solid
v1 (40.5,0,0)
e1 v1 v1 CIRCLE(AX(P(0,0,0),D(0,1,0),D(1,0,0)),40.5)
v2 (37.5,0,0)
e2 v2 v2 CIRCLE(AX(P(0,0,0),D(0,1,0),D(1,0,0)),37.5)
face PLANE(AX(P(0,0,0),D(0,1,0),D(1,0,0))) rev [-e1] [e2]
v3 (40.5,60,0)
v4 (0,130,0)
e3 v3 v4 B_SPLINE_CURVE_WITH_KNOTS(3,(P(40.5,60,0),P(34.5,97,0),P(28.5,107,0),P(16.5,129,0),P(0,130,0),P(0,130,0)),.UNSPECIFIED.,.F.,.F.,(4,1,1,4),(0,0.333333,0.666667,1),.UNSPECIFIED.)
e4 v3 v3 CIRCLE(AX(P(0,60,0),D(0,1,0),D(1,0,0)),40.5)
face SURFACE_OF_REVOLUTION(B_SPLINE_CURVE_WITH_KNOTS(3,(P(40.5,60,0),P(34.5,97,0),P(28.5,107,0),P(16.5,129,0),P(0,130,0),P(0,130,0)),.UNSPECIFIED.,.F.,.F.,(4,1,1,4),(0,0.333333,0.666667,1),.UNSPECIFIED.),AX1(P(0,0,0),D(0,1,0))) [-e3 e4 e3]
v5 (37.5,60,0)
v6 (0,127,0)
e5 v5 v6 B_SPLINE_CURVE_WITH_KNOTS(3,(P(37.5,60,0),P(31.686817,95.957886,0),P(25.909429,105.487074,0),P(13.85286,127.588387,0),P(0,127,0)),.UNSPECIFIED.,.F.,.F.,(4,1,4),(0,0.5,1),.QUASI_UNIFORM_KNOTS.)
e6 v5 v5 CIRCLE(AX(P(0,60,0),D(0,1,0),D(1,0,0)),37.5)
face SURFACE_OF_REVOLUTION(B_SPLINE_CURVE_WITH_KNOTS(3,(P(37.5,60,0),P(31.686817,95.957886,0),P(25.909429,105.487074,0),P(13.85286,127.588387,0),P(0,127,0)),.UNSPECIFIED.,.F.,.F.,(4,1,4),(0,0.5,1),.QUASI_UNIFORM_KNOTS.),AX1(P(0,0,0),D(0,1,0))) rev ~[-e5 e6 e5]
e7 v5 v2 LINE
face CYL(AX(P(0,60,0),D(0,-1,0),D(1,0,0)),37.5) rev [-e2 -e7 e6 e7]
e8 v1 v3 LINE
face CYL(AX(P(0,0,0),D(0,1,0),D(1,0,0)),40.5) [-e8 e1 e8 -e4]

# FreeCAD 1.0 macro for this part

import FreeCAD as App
import Part
import Sketcher

doc = App.newDocument("Part")
body = doc.addObject("PartDesign::Body", "Body")

sketch1 = body.newObject("Sketcher::SketchObject", "Sketch")
sketch1.AttachmentSupport = (doc.getObject("XY_Plane"), [""])
sketch1.MapMode = "FlatFace"
sketch1.addGeometry(Part.LineSegment(App.Vector(37.5, 0, 0), App.Vector(40.5, 0, 0)), False)
sketch1.addGeometry(Part.LineSegment(App.Vector(40.5, 0, 0), App.Vector(40.5, 60, 0)), False)
sketch1.addGeometry(Part.BSplineCurve([App.Vector(40.5, 60, 0), App.Vector(34.5, 97, 0), App.Vector(28.5, 107, 0), App.Vector(16.5, 129, 0), App.Vector(0, 130, 0), App.Vector(0, 130, 0)], [4, 1, 1, 4], [0, 0.333333, 0.666667, 1], False, 3, [1, 1, 1, 1, 1, 1], False), False)
sketch1.addGeometry(Part.LineSegment(App.Vector(0, 130, 0), App.Vector(0, 127, 0)), False)
sketch1.addGeometry(Part.BSplineCurve([App.Vector(37.5, 60, 0), App.Vector(31.686817, 95.957886, 0), App.Vector(25.909429, 105.487074, 0), App.Vector(13.85286, 127.588387, 0), App.Vector(0, 127, 0)], [4, 1, 4], [0, 0.5, 1], False, 3, [1, 1, 1, 1, 1], False), False)
sketch1.addGeometry(Part.LineSegment(App.Vector(37.5, 60, 0), App.Vector(37.5, 0, 0)), False)
sketch1.addConstraint(Sketcher.Constraint("Block", 2))
sketch1.addConstraint(Sketcher.Constraint("Block", 4))
sketch1.addConstraint(Sketcher.Constraint("Coincident", 0, 2, 1, 1))
sketch1.addConstraint(Sketcher.Constraint("Coincident", 1, 2, 2, 1))
sketch1.addConstraint(Sketcher.Constraint("Coincident", 2, 2, 3, 1))
sketch1.addConstraint(Sketcher.Constraint("Coincident", 3, 2, 4, 2))
sketch1.addConstraint(Sketcher.Constraint("Coincident", 4, 1, 5, 1))
sketch1.addConstraint(Sketcher.Constraint("Coincident", 5, 2, 0, 1))
sketch1.addConstraint(Sketcher.Constraint("Horizontal", 0))
sketch1.addConstraint(Sketcher.Constraint("Vertical", 1))
sketch1.addConstraint(Sketcher.Constraint("Vertical", 5))
sketch1.addConstraint(Sketcher.Constraint("PointOnObject", 0, 2, -1))
revolution = body.newObject("PartDesign::Revolution", "Revolution")
revolution.Profile = sketch1
revolution.ReferenceAxis = (sketch1, ["V_Axis"])
revolution.Angle = 360

doc.recompute()
